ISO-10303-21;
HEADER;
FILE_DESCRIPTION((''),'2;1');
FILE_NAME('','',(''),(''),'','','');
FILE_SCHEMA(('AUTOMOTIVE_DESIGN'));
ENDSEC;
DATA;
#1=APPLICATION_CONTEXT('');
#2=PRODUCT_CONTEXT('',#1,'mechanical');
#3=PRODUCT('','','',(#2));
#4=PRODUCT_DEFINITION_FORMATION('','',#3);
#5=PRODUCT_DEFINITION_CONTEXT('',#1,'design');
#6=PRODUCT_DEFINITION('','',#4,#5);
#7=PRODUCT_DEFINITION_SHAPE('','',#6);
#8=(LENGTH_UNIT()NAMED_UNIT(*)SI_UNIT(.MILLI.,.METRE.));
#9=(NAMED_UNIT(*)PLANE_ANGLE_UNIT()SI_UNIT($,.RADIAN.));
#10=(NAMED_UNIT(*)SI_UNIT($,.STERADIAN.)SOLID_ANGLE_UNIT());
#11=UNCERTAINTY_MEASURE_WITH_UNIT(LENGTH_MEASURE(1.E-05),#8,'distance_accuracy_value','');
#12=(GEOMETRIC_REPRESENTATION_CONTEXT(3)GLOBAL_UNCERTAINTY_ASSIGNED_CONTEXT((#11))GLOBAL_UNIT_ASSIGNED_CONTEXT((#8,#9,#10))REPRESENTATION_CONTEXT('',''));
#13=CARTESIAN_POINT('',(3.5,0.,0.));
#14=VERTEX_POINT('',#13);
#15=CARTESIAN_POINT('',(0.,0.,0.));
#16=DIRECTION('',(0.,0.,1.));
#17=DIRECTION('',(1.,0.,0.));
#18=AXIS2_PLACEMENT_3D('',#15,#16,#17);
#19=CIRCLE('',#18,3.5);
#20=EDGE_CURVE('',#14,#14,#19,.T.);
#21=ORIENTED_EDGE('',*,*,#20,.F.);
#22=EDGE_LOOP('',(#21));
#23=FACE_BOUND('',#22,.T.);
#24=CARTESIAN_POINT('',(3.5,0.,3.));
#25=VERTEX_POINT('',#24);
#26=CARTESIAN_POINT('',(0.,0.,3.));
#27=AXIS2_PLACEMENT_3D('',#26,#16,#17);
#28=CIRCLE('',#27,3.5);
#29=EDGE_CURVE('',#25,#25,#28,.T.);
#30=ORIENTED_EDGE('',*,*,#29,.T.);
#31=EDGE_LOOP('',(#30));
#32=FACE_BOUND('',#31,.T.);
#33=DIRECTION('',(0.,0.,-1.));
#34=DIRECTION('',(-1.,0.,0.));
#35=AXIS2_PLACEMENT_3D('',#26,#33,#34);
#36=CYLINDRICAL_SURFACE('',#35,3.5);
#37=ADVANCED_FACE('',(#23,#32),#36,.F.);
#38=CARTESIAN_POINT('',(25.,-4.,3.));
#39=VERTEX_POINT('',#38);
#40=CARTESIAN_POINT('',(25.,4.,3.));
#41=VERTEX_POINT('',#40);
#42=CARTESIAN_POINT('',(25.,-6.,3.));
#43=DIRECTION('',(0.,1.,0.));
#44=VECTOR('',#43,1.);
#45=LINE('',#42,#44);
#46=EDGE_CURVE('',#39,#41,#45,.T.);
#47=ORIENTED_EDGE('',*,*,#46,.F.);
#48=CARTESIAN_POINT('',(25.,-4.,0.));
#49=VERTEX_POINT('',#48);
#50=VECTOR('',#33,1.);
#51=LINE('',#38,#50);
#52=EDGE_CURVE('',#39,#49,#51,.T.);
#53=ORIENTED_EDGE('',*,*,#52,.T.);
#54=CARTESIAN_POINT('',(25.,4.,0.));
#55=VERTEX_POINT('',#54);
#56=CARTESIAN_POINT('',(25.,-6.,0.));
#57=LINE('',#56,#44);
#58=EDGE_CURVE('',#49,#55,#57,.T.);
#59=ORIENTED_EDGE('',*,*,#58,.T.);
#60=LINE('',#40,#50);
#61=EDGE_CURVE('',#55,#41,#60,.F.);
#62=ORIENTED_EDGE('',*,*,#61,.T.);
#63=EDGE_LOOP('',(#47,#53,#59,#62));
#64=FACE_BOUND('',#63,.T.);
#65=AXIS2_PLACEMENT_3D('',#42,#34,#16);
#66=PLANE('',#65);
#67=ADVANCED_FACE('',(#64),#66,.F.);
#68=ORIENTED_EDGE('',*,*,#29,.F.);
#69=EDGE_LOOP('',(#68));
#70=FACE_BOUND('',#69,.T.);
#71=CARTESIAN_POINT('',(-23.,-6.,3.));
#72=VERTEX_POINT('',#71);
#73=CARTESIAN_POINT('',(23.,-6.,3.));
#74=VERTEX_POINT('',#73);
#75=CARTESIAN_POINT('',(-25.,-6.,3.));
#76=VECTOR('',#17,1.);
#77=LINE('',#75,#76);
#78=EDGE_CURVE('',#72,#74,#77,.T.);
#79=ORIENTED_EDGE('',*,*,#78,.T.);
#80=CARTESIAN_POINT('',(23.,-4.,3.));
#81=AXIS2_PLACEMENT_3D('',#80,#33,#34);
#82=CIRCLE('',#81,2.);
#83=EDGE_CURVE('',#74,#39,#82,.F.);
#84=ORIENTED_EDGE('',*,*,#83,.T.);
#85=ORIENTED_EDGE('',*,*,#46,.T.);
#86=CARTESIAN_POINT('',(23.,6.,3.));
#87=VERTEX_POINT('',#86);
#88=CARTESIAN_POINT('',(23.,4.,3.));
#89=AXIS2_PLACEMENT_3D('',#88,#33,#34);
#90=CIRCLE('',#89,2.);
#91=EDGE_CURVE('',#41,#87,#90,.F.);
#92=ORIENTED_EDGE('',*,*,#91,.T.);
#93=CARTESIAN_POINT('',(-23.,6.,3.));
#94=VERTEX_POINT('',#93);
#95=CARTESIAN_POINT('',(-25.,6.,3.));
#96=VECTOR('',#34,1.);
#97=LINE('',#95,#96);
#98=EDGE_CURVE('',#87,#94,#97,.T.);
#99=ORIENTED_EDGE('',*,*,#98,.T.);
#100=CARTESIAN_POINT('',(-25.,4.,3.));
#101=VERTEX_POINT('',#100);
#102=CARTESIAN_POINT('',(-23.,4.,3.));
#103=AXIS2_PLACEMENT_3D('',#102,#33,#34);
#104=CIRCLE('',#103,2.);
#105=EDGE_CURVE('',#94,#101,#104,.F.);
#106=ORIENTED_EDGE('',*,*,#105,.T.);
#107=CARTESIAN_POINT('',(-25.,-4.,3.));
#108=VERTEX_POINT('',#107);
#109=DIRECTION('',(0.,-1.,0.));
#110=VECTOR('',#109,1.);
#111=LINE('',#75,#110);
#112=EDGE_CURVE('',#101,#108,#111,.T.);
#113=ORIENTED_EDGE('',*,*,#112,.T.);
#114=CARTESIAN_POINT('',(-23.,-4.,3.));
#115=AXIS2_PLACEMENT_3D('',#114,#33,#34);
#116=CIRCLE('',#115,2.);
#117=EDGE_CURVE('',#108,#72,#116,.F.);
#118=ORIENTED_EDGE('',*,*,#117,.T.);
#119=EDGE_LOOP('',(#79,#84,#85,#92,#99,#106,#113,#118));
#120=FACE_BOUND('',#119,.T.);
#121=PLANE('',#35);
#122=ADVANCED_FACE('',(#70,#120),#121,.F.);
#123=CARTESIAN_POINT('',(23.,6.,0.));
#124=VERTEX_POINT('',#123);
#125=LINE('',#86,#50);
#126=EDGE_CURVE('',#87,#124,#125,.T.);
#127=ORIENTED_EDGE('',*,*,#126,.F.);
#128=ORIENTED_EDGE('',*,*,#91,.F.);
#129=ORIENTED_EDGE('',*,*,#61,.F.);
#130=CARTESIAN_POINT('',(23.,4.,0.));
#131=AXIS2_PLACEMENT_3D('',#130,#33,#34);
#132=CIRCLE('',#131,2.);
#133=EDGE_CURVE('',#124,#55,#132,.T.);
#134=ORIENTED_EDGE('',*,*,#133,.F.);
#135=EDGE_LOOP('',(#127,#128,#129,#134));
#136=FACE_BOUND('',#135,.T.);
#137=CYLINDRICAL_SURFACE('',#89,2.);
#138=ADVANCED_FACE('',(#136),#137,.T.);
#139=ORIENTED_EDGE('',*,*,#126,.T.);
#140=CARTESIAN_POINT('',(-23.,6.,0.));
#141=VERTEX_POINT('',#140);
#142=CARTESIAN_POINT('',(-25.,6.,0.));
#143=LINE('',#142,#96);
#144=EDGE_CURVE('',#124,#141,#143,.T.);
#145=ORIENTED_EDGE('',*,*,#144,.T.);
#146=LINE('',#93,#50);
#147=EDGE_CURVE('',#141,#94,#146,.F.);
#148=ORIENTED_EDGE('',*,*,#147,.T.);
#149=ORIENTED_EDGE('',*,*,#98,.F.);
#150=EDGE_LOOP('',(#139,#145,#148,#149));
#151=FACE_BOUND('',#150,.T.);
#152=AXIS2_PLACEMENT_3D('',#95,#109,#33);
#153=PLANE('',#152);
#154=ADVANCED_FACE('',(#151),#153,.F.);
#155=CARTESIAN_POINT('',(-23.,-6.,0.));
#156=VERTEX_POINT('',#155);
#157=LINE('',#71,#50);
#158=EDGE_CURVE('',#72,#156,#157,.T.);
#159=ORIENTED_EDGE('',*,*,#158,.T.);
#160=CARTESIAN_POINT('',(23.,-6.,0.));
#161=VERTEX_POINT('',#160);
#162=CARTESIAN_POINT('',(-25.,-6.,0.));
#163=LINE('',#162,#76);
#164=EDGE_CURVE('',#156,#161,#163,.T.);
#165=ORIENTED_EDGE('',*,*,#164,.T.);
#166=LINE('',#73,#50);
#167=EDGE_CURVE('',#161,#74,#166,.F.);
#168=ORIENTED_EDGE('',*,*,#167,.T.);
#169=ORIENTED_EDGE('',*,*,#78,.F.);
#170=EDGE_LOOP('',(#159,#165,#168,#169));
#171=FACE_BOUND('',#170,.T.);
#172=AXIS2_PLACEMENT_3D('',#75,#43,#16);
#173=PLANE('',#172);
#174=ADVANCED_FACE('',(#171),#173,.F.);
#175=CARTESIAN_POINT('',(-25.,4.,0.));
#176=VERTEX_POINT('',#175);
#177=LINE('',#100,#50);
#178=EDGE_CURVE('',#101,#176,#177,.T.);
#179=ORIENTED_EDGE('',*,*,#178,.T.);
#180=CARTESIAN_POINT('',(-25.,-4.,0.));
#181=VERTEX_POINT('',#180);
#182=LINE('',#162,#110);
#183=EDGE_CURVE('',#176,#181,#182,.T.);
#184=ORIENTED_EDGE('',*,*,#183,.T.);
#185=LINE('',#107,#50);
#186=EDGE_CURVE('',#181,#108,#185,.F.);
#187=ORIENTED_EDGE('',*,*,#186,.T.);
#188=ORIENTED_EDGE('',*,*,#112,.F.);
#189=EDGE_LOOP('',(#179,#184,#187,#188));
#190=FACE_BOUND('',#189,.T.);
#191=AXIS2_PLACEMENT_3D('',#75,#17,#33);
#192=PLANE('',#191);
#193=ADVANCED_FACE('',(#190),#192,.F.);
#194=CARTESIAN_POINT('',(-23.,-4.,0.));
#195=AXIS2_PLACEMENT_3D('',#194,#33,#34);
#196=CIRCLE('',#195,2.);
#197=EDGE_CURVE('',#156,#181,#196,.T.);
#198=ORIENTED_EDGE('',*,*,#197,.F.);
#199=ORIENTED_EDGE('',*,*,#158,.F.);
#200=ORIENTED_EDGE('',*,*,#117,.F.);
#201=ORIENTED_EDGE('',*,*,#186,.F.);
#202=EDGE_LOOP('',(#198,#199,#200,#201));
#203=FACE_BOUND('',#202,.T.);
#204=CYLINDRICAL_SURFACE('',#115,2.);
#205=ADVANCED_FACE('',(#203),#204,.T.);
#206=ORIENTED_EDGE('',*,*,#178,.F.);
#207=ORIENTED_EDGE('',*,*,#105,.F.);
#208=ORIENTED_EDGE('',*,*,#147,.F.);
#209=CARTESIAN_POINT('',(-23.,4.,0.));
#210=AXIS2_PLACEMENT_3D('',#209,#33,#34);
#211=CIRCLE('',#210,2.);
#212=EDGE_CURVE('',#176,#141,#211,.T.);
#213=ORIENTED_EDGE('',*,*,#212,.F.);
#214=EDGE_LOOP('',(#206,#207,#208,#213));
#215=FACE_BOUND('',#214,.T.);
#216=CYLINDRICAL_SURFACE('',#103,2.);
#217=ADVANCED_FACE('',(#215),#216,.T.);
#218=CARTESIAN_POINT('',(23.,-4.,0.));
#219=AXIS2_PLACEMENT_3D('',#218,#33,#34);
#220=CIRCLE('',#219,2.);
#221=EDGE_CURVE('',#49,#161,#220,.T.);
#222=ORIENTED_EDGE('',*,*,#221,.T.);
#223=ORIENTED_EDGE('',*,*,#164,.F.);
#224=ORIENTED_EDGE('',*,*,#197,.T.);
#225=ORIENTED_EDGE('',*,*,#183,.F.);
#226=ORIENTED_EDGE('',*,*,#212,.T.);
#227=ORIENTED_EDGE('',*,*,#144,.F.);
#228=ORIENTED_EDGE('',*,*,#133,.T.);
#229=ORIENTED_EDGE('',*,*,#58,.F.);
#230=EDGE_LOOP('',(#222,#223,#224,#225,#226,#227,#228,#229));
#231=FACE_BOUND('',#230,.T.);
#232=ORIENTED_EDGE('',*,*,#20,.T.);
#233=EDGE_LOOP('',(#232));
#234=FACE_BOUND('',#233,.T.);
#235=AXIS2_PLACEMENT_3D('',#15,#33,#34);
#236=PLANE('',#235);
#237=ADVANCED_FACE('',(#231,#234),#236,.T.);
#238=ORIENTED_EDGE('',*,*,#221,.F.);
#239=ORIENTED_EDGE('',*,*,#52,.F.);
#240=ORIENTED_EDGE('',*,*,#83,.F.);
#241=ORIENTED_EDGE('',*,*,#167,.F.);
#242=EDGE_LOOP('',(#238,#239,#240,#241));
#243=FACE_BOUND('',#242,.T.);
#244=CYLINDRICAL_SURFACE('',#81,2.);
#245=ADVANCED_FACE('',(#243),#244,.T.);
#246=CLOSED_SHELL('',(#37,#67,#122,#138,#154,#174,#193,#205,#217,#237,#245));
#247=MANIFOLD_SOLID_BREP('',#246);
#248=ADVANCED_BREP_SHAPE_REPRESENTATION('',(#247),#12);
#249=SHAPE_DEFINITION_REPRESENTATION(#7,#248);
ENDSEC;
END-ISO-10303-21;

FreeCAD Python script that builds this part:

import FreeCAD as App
import Part
import Sketcher

V = App.Vector
Q = App.Units.Quantity


def edges_at(feature, points):
    """Names of the edges that pass closest to the given points."""
    edges = feature.Shape.Edges
    near = lambda p: min(range(len(edges)), key=lambda i: edges[i].distToShape(Part.Vertex(*p))[0])
    return sorted({f"Edge{near(p) + 1}" for p in points})


def add_polygon(sketch, points):
    """Adds a closed chain of lines whose ends are joined by coincident constraints."""
    first, n = sketch.GeometryCount, len(points)
    for a, b in zip(points, points[1:] + points[:1]):
        sketch.addGeometry(Part.LineSegment(App.Vector(*a, 0), App.Vector(*b, 0)), False)
    for i in range(n):
        sketch.addConstraint(Sketcher.Constraint("Coincident", first + i, 2, first + (i + 1) % n, 1))

doc = App.newDocument("Part")
body = doc.addObject("PartDesign::Body", "Body")

# Sketch on XY plane
sketch1 = body.newObject("Sketcher::SketchObject", "Sketch")
sketch1.AttachmentSupport = (doc.getObject("XY_Plane"), [""])
sketch1.MapMode = "FlatFace"
add_polygon(sketch1, [(-25, 6), (-25, -6), (25, -6), (25, 6)])  # lines 0-3
sketch1.addGeometry(Part.Circle(V(0, 0, 0), V(0, 0, 1), 3.5), False)  # 4
sketch1.addConstraint(Sketcher.Constraint("Vertical", 0))
sketch1.addConstraint(Sketcher.Constraint("Horizontal", 1))
sketch1.addConstraint(Sketcher.Constraint("Vertical", 2))
sketch1.addConstraint(Sketcher.Constraint("Horizontal", 3))
sketch1.addConstraint(Sketcher.Constraint("Coincident", 4, 3, -1, 1))
sketch1.addConstraint(Sketcher.Constraint("Symmetric", 0, 2, 2, 2, -1, 1))
sketch1.addConstraint(Sketcher.Constraint("Diameter", 4, Q("7 mm")))
sketch1.addConstraint(Sketcher.Constraint("DistanceX", 1, 1, 1, 2, Q("50 mm")))
sketch1.addConstraint(Sketcher.Constraint("DistanceY", 0, 2, 0, 1, Q("12 mm")))
pad1 = body.newObject("PartDesign::Pad", "Pad")
pad1.Profile = sketch1
pad1.Length = 3
doc.recompute()

fillet = body.newObject("PartDesign::Fillet", "Fillet")
fillet.Base = (pad1, edges_at(pad1, [
    (25, -6, 1.5),
    (-25, -6, 1.5),
    (-25, 6, 1.5),
    (25, 6, 1.5),
]))
fillet.Radius = 2

doc.recompute()
